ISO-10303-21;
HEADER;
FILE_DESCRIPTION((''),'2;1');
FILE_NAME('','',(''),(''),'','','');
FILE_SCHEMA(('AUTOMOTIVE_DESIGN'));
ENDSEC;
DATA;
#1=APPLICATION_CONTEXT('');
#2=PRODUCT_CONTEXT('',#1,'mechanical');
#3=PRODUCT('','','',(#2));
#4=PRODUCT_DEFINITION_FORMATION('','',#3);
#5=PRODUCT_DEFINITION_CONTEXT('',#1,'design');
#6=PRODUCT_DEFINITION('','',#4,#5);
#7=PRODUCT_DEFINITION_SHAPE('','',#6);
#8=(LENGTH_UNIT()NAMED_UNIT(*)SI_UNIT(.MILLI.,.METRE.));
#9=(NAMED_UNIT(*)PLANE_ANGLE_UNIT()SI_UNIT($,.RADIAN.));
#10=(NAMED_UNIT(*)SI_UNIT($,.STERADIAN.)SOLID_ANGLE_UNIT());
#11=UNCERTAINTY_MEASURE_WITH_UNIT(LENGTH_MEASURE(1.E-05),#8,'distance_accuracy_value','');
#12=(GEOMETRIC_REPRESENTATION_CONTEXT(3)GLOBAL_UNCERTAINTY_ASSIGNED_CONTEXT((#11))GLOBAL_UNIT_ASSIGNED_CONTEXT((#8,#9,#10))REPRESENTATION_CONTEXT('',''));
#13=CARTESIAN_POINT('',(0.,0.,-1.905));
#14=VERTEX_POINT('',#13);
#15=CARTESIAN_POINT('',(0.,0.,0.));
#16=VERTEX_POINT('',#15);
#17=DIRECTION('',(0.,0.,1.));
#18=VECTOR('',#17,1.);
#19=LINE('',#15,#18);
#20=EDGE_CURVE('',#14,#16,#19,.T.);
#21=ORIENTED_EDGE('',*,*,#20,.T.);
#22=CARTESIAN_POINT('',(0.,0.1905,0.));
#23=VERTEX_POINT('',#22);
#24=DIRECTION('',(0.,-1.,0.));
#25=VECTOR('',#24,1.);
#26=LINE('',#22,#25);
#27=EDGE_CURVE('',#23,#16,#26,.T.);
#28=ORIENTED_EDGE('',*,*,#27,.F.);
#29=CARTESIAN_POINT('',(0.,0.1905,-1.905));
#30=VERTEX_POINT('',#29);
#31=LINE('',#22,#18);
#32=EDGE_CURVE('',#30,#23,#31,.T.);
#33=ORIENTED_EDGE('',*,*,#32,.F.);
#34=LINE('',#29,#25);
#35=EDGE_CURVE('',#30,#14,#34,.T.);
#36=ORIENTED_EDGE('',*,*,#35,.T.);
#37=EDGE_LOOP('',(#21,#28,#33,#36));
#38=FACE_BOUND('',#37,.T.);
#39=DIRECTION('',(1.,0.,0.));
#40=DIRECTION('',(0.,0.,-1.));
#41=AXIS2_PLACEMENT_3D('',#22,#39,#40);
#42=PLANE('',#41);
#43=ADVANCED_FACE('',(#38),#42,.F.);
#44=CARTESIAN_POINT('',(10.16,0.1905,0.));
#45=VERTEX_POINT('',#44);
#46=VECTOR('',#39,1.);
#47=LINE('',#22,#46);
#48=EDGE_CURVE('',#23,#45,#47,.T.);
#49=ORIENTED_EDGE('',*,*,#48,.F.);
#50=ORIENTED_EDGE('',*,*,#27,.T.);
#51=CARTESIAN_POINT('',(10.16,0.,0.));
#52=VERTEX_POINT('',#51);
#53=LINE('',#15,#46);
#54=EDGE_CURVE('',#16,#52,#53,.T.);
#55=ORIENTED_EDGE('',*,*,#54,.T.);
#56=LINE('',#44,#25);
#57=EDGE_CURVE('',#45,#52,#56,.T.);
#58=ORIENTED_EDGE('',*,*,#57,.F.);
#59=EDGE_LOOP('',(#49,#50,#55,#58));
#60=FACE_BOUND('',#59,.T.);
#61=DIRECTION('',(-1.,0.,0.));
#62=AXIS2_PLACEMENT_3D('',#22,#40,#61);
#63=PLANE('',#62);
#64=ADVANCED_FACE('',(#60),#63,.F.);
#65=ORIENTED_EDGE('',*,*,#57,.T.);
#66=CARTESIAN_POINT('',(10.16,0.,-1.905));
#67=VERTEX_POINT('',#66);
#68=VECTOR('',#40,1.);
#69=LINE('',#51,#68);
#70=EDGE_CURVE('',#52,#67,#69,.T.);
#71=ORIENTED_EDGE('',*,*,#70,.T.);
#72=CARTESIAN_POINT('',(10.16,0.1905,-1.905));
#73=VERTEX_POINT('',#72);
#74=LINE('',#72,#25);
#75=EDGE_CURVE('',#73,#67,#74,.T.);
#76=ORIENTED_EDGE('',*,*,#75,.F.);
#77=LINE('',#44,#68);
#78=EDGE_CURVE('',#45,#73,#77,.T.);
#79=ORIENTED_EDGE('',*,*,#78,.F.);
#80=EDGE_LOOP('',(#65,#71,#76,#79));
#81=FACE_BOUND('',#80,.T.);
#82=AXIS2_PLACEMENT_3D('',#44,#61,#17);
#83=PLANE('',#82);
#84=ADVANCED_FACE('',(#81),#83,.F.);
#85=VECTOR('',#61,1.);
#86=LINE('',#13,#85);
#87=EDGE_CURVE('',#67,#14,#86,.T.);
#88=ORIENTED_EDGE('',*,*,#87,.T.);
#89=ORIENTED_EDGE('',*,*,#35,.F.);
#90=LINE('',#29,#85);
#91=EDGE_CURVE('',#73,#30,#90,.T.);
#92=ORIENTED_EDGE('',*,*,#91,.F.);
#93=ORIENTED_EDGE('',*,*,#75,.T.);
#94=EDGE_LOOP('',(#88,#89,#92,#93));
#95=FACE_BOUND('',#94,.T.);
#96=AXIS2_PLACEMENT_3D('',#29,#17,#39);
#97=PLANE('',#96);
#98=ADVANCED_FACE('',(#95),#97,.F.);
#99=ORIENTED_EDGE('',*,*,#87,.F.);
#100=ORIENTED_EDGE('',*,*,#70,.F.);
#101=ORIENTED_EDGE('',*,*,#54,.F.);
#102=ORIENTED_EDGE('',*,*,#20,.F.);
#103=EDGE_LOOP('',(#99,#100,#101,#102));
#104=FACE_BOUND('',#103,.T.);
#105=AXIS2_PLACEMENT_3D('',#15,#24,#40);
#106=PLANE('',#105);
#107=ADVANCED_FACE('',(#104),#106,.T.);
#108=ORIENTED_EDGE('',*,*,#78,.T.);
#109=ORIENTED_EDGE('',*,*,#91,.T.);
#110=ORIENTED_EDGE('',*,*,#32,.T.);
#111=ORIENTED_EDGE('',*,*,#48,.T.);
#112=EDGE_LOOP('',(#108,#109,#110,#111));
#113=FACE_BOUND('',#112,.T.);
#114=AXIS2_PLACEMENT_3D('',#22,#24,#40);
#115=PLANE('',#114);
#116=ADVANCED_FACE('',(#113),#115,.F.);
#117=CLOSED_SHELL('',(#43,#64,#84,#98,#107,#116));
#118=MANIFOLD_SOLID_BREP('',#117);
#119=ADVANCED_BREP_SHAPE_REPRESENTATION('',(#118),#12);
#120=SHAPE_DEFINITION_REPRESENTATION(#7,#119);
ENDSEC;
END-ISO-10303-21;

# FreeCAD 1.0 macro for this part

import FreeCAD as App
import Part
import Sketcher
from FreeCAD import Vector
Q = App.Units.Quantity

doc = App.newDocument("Part")
params = doc.addObject("Spreadsheet::Sheet", "Params")
for row, (alias, value) in enumerate([
    ("sketch1_width", "0.4 in"),
    ("sketch1_height", "0.075 in"),
    ("pad1_length", "0.0075 in"),
], start=1):
    params.set(f"A{row}", alias)
    params.set(f"B{row}", "=" + value)
    params.setAlias(f"B{row}", alias)

body = doc.addObject("PartDesign::Body", "Body")

# Sketch on XZ plane
sketch1 = doc.addObject("Sketcher::SketchObject", "Sketch")
body.addObject(sketch1)
sketch1.AttachmentSupport = (doc.XZ_Plane, [""])
sketch1.MapMode = "FlatFace"
sketch1.addGeometry([
    Part.LineSegment(Vector(0, -1.905, 0), Vector(0, 0, 0)),
    Part.LineSegment(Vector(0, 0, 0), Vector(10.16, 0, 0)),
    Part.LineSegment(Vector(10.16, 0, 0), Vector(10.16, -1.905, 0)),
    Part.LineSegment(Vector(10.16, -1.905, 0), Vector(0, -1.905, 0)),
], False)
sketch1.addConstraint([
    Sketcher.Constraint("Coincident", 0, 2, 1, 1),
    Sketcher.Constraint("Coincident", 1, 2, 2, 1),
    Sketcher.Constraint("Coincident", 2, 2, 3, 1),
    Sketcher.Constraint("Coincident", 3, 2, 0, 1),
    Sketcher.Constraint("Vertical", 0),
    Sketcher.Constraint("Horizontal", 1),
    Sketcher.Constraint("Vertical", 2),
    Sketcher.Constraint("Horizontal", 3),
    Sketcher.Constraint("Coincident", 0, 2, -1, 1),
    Sketcher.Constraint("DistanceX", 1, 1, 1, 2, Q("0.4 in")),
    Sketcher.Constraint("DistanceY", 0, 1, 0, 2, Q("0.075 in")),
])
sketch1.setExpression("Constraints[9]", "Params.sketch1_width")
sketch1.setExpression("Constraints[10]", "Params.sketch1_height")
pad1 = doc.addObject("PartDesign::Pad", "Pad")
body.addObject(pad1)
pad1.Profile = sketch1
pad1.setExpression("Length", "Params.pad1_length")
pad1.Reversed = True

doc.recompute()
